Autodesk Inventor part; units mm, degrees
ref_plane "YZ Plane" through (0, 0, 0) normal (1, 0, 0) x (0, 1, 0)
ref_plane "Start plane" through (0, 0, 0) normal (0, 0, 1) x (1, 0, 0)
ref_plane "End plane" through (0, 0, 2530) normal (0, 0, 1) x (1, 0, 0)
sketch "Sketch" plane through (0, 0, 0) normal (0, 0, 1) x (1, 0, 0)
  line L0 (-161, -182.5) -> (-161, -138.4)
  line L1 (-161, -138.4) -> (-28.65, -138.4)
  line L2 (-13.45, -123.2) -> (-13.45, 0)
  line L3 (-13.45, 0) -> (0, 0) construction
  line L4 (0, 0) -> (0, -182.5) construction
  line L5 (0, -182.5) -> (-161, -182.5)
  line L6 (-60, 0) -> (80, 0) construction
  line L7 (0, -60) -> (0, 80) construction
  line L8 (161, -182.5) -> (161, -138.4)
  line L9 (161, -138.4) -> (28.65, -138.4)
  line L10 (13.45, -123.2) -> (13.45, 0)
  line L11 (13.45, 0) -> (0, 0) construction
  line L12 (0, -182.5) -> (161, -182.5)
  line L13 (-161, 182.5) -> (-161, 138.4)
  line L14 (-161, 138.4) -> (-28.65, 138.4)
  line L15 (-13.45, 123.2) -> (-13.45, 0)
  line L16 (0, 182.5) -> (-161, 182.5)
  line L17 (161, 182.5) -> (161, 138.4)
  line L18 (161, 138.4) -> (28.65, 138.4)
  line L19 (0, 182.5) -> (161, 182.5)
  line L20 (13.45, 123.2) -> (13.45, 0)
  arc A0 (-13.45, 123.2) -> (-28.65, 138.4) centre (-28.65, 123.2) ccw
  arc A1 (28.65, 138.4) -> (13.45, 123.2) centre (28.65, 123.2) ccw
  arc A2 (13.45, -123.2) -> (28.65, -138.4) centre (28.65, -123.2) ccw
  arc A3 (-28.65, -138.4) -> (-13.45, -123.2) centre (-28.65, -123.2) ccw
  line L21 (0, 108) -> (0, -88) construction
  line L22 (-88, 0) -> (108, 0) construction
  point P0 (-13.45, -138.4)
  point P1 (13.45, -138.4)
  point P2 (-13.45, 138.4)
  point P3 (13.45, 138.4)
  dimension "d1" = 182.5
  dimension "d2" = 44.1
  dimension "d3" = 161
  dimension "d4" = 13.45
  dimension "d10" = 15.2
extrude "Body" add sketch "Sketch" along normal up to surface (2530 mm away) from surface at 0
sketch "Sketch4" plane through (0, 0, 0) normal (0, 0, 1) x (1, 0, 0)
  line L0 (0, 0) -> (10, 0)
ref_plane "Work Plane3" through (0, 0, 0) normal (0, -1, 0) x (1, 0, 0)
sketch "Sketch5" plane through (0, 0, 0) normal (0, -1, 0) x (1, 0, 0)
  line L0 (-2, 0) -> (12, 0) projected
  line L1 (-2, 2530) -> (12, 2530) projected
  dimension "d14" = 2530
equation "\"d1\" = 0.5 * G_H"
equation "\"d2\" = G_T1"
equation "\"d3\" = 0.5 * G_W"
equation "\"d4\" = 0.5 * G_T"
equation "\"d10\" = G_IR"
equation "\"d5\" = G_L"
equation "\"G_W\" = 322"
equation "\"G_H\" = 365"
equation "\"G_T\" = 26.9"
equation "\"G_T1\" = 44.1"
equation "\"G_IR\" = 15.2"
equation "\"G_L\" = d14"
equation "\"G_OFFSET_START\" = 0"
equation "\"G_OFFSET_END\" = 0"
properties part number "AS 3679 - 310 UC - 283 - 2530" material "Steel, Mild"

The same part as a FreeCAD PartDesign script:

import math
import FreeCAD as App
import Part
import Sketcher

V = App.Vector

doc = App.newDocument("Part")
body = doc.addObject("PartDesign::Body", "Body")

# Sketch on XY plane
sketch1 = doc.addObject("Sketcher::SketchObject", "Sketch")
body.addObject(sketch1)
sketch1.AttachmentSupport = (doc.XY_Plane, [""])
sketch1.MapMode = "FlatFace"
sketch1.addGeometry(Part.LineSegment(V(-161, -138, 0), V(-161, -182, 0)), False)
sketch1.addGeometry(Part.LineSegment(V(-161, -182, 0), V(161, -182, 0)), False)
sketch1.addGeometry(Part.LineSegment(V(161, -182, 0), V(161, -138, 0)), False)
sketch1.addGeometry(Part.LineSegment(V(161, -138, 0), V(29, -138, 0)), False)
sketch1.addGeometry(Part.ArcOfCircle(Part.Circle(V(29, -123, 0), V(0, 0, 1), 15), math.radians(180), math.radians(270)), False)
sketch1.addGeometry(Part.LineSegment(V(13, -123, 0), V(13, 123, 0)), False)
sketch1.addGeometry(Part.ArcOfCircle(Part.Circle(V(29, 123, 0), V(0, 0, 1), 15), math.radians(90), math.radians(180)), False)
sketch1.addGeometry(Part.LineSegment(V(29, 138, 0), V(161, 138, 0)), False)
sketch1.addGeometry(Part.LineSegment(V(161, 138, 0), V(161, 182, 0)), False)
sketch1.addGeometry(Part.LineSegment(V(161, 182, 0), V(-161, 182, 0)), False)
sketch1.addGeometry(Part.LineSegment(V(-161, 182, 0), V(-161, 138, 0)), False)
sketch1.addGeometry(Part.LineSegment(V(-161, 138, 0), V(-29, 138, 0)), False)
sketch1.addGeometry(Part.ArcOfCircle(Part.Circle(V(-29, 123, 0), V(0, 0, 1), 15), math.radians(0), math.radians(90)), False)
sketch1.addGeometry(Part.LineSegment(V(-13, 123, 0), V(-13, -123, 0)), False)
sketch1.addGeometry(Part.ArcOfCircle(Part.Circle(V(-29, -123, 0), V(0, 0, 1), 15), math.radians(-90), math.radians(0)), False)
sketch1.addGeometry(Part.LineSegment(V(-29, -138, 0), V(-161, -138, 0)), False)
sketch1.addConstraint(Sketcher.Constraint("Coincident", 0, 2, 1, 1))
sketch1.addConstraint(Sketcher.Constraint("Coincident", 1, 2, 2, 1))
sketch1.addConstraint(Sketcher.Constraint("Coincident", 2, 2, 3, 1))
sketch1.addConstraint(Sketcher.Constraint("Tangent", 3, 2, 4, 2))
sketch1.addConstraint(Sketcher.Constraint("Tangent", 4, 1, 5, 1))
sketch1.addConstraint(Sketcher.Constraint("Tangent", 5, 2, 6, 2))
sketch1.addConstraint(Sketcher.Constraint("Tangent", 6, 1, 7, 1))
sketch1.addConstraint(Sketcher.Constraint("Coincident", 7, 2, 8, 1))
sketch1.addConstraint(Sketcher.Constraint("Coincident", 8, 2, 9, 1))
sketch1.addConstraint(Sketcher.Constraint("Coincident", 9, 2, 10, 1))
sketch1.addConstraint(Sketcher.Constraint("Coincident", 10, 2, 11, 1))
sketch1.addConstraint(Sketcher.Constraint("Tangent", 11, 2, 12, 2))
sketch1.addConstraint(Sketcher.Constraint("Tangent", 12, 1, 13, 1))
sketch1.addConstraint(Sketcher.Constraint("Tangent", 13, 2, 14, 2))
sketch1.addConstraint(Sketcher.Constraint("Tangent", 14, 1, 15, 1))
sketch1.addConstraint(Sketcher.Constraint("Coincident", 15, 2, 0, 1))
sketch1.addConstraint(Sketcher.Constraint("Vertical", 0))
sketch1.addConstraint(Sketcher.Constraint("Horizontal", 1))
sketch1.addConstraint(Sketcher.Constraint("Vertical", 2))
sketch1.addConstraint(Sketcher.Constraint("Horizontal", 3))
sketch1.addConstraint(Sketcher.Constraint("Vertical", 5))
sketch1.addConstraint(Sketcher.Constraint("Horizontal", 7))
sketch1.addConstraint(Sketcher.Constraint("Vertical", 8))
sketch1.addConstraint(Sketcher.Constraint("Horizontal", 9))
sketch1.addConstraint(Sketcher.Constraint("Vertical", 10))
sketch1.addConstraint(Sketcher.Constraint("Horizontal", 11))
sketch1.addConstraint(Sketcher.Constraint("Vertical", 13))
sketch1.addConstraint(Sketcher.Constraint("Horizontal", 15))
sketch1.addConstraint(Sketcher.Constraint("Equal", 4, 6))
sketch1.addConstraint(Sketcher.Constraint("Equal", 6, 12))
sketch1.addConstraint(Sketcher.Constraint("Equal", 12, 14))
sketch1.addConstraint(Sketcher.Constraint("Symmetric", 4, 3, 12, 3, -1, 1))
sketch1.addConstraint(Sketcher.Constraint("Symmetric", 0, 2, 8, 2, -1, 1))
sketch1.addConstraint(Sketcher.Constraint("Symmetric", 7, 2, 10, 2, -2))
sketch1.addConstraint(Sketcher.Constraint("Symmetric", 2, 2, 15, 2, -2))
sketch1.addConstraint(Sketcher.Constraint("Radius", 4, 15.2))
sketch1.addConstraint(Sketcher.Constraint("DistanceY", 0, 2, 0, 1, 44.1))
sketch1.addConstraint(Sketcher.Constraint("DistanceX", 0, 2, -1, 1, 161.0))
sketch1.addConstraint(Sketcher.Constraint("DistanceY", 0, 2, -1, 1, 182.5))
sketch1.addConstraint(Sketcher.Constraint("DistanceX", -1, 1, 4, 1, 13.45))
pad1 = doc.addObject("PartDesign::Pad", "Pad")
body.addObject(pad1)
pad1.Profile = sketch1
pad1.Length = 2530

doc.recompute()
